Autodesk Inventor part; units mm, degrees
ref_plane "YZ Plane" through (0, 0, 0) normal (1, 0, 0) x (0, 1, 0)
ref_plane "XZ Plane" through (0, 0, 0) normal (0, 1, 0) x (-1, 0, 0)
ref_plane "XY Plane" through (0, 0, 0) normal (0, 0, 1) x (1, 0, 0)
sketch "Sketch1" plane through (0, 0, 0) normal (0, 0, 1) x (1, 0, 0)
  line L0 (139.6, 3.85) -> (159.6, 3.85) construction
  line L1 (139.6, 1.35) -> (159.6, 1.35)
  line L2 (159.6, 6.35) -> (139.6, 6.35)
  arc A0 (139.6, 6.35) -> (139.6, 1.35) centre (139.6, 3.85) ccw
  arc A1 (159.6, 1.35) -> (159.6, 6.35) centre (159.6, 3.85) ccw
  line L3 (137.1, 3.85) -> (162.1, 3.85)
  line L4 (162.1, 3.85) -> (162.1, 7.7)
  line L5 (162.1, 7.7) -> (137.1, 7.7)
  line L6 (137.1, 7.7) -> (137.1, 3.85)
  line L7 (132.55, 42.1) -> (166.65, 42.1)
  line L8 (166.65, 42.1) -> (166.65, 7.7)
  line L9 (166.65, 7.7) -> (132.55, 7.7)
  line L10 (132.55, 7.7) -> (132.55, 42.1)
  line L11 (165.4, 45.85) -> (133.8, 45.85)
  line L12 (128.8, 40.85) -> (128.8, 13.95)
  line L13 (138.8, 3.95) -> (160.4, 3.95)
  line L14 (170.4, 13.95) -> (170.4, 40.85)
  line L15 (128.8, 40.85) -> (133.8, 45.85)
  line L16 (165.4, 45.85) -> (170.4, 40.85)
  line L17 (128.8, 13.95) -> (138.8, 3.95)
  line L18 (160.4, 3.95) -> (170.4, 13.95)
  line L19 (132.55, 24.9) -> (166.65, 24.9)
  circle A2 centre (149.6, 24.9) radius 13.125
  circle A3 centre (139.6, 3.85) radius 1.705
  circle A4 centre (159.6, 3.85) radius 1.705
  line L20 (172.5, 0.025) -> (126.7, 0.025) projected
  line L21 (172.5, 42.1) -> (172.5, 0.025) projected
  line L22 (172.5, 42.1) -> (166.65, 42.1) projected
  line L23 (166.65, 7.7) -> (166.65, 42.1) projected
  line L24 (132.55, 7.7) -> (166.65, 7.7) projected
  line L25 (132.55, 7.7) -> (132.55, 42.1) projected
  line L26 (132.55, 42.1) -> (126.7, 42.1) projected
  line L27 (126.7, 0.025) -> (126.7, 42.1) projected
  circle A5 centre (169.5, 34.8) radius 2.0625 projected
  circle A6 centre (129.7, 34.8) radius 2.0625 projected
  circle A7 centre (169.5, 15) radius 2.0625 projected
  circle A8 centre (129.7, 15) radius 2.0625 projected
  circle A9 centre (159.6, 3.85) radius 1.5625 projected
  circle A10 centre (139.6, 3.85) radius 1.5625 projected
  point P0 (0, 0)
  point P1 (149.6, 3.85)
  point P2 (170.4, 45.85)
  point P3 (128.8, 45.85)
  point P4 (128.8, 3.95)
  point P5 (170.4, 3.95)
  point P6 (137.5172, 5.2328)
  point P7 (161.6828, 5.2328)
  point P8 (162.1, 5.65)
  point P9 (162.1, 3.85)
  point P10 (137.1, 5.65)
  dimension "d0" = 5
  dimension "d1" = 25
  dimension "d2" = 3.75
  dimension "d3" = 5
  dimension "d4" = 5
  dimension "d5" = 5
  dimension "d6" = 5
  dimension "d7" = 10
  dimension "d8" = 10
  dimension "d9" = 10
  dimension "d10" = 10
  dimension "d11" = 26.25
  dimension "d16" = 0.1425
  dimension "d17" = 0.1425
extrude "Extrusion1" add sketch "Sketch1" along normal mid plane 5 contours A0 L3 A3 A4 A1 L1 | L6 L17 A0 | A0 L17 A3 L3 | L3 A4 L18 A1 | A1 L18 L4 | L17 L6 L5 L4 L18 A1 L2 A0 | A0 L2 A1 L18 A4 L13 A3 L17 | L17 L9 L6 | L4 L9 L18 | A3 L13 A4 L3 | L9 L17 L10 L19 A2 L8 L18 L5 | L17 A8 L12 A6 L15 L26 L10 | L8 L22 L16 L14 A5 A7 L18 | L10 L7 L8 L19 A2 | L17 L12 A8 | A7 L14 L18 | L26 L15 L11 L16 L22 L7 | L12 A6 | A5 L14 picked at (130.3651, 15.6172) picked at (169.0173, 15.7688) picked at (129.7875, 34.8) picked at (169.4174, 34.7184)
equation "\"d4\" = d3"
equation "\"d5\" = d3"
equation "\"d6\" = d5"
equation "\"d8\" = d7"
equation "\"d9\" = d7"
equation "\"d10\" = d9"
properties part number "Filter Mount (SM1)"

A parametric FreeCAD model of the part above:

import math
import FreeCAD as App
import Part
import Sketcher

V = App.Vector

doc = App.newDocument("Part")
body = doc.addObject("PartDesign::Body", "Body")

sketch1 = body.newObject("Sketcher::SketchObject", "Sketch")
sketch1.AttachmentSupport = (doc.getObject("XY_Plane"), [""])
sketch1.MapMode = "FlatFace"
sketch1.addGeometry([
    Part.ArcOfCircle(Part.Circle(V(139.6, 3.9, 0), V(0, 0, 1), 2.5), math.radians(180), math.radians(270)),
    Part.LineSegment(V(139.6, 1.4, 0), V(159.6, 1.4, 0)),
    Part.ArcOfCircle(Part.Circle(V(159.6, 3.9, 0), V(0, 0, 1), 2.5), math.radians(-90), math.radians(0)),
    Part.LineSegment(V(162.1, 3.9, 0), V(162.1, 5.7, 0)),
    Part.LineSegment(V(162.1, 5.7, 0), V(170.4, 13.9, 0)),
    Part.LineSegment(V(170.4, 13.9, 0), V(170.4, 40.9, 0)),
    Part.LineSegment(V(170.4, 40.9, 0), V(165.4, 45.9, 0)),
    Part.LineSegment(V(165.4, 45.9, 0), V(133.8, 45.9, 0)),
    Part.LineSegment(V(133.8, 45.9, 0), V(128.8, 40.9, 0)),
    Part.LineSegment(V(128.8, 40.9, 0), V(128.8, 13.9, 0)),
    Part.LineSegment(V(128.8, 13.9, 0), V(137.1, 5.7, 0)),
    Part.LineSegment(V(137.1, 5.7, 0), V(137.1, 3.9, 0)),
    Part.Circle(V(139.6, 3.9, 0), V(0, 0, 1), 1.7),
    Part.Circle(V(159.6, 3.9, 0), V(0, 0, 1), 1.7),
    Part.Circle(V(149.6, 24.9, 0), V(0, 0, 1), 13.1),
], False)
sketch1.addConstraint([
    Sketcher.Constraint("Tangent", 0, 2, 1, 1),
    Sketcher.Constraint("Tangent", 1, 2, 2, 1),
    Sketcher.Constraint("Tangent", 2, 2, 3, 1),
    Sketcher.Constraint("Coincident", 3, 2, 4, 1),
    Sketcher.Constraint("Coincident", 4, 2, 5, 1),
    Sketcher.Constraint("Coincident", 5, 2, 6, 1),
    Sketcher.Constraint("Coincident", 6, 2, 7, 1),
    Sketcher.Constraint("Coincident", 7, 2, 8, 1),
    Sketcher.Constraint("Coincident", 8, 2, 9, 1),
    Sketcher.Constraint("Coincident", 9, 2, 10, 1),
    Sketcher.Constraint("Coincident", 10, 2, 11, 1),
    Sketcher.Constraint("Tangent", 11, 2, 0, 1),
    Sketcher.Constraint("Horizontal", 1),
    Sketcher.Constraint("Vertical", 3),
    Sketcher.Constraint("Vertical", 5),
    Sketcher.Constraint("Horizontal", 7),
    Sketcher.Constraint("Vertical", 9),
    Sketcher.Constraint("Vertical", 11),
    Sketcher.Constraint("Coincident", 12, 3, 0, 3),
    Sketcher.Constraint("Coincident", 13, 3, 2, 3),
    Sketcher.Constraint("Equal", 0, 2),
    Sketcher.Constraint("Equal", 12, 13),
    Sketcher.Constraint("Perpendicular", 4, 6),
    Sketcher.Constraint("Perpendicular", 6, 8),
    Sketcher.Constraint("Perpendicular", 8, 10),
    Sketcher.Constraint("Horizontal", 5, 2, 8, 2),
    Sketcher.Constraint("Horizontal", 4, 2, 9, 2),
    Sketcher.Constraint("Horizontal", 3, 2, 10, 2),
    Sketcher.Constraint("Equal", 6, 8),
    Sketcher.Constraint("Radius", 0, 2.5),
    Sketcher.Constraint("Diameter", 14, 26.25),
    Sketcher.Constraint("DistanceX", 0, 3, 14, 3, 10.0),
    Sketcher.Constraint("DistanceX", 14, 3, 2, 3, 10.0),
    Sketcher.Constraint("DistanceX", 6, 2, 5, 2, 5.0),
    Sketcher.Constraint("Diameter", 12, 3.41),
    Sketcher.Constraint("DistanceX", 7, 2, 7, 1, 31.6),
    Sketcher.Constraint("DistanceY", 3, 1, 3, 2, 1.8),
    Sketcher.Constraint("DistanceY", 5, 1, 5, 2, 26.9),
    Sketcher.Constraint("DistanceX", -1, 1, 0, 3, 139.6),
    Sketcher.Constraint("DistanceY", -1, 1, 14, 3, 24.9),
    Sketcher.Constraint("DistanceY", -1, 1, 0, 3, 3.85),
])
pad1 = body.newObject("PartDesign::Pad", "Pad")
pad1.Profile = sketch1
pad1.Length = 5
pad1.Midplane = True

doc.recompute()
